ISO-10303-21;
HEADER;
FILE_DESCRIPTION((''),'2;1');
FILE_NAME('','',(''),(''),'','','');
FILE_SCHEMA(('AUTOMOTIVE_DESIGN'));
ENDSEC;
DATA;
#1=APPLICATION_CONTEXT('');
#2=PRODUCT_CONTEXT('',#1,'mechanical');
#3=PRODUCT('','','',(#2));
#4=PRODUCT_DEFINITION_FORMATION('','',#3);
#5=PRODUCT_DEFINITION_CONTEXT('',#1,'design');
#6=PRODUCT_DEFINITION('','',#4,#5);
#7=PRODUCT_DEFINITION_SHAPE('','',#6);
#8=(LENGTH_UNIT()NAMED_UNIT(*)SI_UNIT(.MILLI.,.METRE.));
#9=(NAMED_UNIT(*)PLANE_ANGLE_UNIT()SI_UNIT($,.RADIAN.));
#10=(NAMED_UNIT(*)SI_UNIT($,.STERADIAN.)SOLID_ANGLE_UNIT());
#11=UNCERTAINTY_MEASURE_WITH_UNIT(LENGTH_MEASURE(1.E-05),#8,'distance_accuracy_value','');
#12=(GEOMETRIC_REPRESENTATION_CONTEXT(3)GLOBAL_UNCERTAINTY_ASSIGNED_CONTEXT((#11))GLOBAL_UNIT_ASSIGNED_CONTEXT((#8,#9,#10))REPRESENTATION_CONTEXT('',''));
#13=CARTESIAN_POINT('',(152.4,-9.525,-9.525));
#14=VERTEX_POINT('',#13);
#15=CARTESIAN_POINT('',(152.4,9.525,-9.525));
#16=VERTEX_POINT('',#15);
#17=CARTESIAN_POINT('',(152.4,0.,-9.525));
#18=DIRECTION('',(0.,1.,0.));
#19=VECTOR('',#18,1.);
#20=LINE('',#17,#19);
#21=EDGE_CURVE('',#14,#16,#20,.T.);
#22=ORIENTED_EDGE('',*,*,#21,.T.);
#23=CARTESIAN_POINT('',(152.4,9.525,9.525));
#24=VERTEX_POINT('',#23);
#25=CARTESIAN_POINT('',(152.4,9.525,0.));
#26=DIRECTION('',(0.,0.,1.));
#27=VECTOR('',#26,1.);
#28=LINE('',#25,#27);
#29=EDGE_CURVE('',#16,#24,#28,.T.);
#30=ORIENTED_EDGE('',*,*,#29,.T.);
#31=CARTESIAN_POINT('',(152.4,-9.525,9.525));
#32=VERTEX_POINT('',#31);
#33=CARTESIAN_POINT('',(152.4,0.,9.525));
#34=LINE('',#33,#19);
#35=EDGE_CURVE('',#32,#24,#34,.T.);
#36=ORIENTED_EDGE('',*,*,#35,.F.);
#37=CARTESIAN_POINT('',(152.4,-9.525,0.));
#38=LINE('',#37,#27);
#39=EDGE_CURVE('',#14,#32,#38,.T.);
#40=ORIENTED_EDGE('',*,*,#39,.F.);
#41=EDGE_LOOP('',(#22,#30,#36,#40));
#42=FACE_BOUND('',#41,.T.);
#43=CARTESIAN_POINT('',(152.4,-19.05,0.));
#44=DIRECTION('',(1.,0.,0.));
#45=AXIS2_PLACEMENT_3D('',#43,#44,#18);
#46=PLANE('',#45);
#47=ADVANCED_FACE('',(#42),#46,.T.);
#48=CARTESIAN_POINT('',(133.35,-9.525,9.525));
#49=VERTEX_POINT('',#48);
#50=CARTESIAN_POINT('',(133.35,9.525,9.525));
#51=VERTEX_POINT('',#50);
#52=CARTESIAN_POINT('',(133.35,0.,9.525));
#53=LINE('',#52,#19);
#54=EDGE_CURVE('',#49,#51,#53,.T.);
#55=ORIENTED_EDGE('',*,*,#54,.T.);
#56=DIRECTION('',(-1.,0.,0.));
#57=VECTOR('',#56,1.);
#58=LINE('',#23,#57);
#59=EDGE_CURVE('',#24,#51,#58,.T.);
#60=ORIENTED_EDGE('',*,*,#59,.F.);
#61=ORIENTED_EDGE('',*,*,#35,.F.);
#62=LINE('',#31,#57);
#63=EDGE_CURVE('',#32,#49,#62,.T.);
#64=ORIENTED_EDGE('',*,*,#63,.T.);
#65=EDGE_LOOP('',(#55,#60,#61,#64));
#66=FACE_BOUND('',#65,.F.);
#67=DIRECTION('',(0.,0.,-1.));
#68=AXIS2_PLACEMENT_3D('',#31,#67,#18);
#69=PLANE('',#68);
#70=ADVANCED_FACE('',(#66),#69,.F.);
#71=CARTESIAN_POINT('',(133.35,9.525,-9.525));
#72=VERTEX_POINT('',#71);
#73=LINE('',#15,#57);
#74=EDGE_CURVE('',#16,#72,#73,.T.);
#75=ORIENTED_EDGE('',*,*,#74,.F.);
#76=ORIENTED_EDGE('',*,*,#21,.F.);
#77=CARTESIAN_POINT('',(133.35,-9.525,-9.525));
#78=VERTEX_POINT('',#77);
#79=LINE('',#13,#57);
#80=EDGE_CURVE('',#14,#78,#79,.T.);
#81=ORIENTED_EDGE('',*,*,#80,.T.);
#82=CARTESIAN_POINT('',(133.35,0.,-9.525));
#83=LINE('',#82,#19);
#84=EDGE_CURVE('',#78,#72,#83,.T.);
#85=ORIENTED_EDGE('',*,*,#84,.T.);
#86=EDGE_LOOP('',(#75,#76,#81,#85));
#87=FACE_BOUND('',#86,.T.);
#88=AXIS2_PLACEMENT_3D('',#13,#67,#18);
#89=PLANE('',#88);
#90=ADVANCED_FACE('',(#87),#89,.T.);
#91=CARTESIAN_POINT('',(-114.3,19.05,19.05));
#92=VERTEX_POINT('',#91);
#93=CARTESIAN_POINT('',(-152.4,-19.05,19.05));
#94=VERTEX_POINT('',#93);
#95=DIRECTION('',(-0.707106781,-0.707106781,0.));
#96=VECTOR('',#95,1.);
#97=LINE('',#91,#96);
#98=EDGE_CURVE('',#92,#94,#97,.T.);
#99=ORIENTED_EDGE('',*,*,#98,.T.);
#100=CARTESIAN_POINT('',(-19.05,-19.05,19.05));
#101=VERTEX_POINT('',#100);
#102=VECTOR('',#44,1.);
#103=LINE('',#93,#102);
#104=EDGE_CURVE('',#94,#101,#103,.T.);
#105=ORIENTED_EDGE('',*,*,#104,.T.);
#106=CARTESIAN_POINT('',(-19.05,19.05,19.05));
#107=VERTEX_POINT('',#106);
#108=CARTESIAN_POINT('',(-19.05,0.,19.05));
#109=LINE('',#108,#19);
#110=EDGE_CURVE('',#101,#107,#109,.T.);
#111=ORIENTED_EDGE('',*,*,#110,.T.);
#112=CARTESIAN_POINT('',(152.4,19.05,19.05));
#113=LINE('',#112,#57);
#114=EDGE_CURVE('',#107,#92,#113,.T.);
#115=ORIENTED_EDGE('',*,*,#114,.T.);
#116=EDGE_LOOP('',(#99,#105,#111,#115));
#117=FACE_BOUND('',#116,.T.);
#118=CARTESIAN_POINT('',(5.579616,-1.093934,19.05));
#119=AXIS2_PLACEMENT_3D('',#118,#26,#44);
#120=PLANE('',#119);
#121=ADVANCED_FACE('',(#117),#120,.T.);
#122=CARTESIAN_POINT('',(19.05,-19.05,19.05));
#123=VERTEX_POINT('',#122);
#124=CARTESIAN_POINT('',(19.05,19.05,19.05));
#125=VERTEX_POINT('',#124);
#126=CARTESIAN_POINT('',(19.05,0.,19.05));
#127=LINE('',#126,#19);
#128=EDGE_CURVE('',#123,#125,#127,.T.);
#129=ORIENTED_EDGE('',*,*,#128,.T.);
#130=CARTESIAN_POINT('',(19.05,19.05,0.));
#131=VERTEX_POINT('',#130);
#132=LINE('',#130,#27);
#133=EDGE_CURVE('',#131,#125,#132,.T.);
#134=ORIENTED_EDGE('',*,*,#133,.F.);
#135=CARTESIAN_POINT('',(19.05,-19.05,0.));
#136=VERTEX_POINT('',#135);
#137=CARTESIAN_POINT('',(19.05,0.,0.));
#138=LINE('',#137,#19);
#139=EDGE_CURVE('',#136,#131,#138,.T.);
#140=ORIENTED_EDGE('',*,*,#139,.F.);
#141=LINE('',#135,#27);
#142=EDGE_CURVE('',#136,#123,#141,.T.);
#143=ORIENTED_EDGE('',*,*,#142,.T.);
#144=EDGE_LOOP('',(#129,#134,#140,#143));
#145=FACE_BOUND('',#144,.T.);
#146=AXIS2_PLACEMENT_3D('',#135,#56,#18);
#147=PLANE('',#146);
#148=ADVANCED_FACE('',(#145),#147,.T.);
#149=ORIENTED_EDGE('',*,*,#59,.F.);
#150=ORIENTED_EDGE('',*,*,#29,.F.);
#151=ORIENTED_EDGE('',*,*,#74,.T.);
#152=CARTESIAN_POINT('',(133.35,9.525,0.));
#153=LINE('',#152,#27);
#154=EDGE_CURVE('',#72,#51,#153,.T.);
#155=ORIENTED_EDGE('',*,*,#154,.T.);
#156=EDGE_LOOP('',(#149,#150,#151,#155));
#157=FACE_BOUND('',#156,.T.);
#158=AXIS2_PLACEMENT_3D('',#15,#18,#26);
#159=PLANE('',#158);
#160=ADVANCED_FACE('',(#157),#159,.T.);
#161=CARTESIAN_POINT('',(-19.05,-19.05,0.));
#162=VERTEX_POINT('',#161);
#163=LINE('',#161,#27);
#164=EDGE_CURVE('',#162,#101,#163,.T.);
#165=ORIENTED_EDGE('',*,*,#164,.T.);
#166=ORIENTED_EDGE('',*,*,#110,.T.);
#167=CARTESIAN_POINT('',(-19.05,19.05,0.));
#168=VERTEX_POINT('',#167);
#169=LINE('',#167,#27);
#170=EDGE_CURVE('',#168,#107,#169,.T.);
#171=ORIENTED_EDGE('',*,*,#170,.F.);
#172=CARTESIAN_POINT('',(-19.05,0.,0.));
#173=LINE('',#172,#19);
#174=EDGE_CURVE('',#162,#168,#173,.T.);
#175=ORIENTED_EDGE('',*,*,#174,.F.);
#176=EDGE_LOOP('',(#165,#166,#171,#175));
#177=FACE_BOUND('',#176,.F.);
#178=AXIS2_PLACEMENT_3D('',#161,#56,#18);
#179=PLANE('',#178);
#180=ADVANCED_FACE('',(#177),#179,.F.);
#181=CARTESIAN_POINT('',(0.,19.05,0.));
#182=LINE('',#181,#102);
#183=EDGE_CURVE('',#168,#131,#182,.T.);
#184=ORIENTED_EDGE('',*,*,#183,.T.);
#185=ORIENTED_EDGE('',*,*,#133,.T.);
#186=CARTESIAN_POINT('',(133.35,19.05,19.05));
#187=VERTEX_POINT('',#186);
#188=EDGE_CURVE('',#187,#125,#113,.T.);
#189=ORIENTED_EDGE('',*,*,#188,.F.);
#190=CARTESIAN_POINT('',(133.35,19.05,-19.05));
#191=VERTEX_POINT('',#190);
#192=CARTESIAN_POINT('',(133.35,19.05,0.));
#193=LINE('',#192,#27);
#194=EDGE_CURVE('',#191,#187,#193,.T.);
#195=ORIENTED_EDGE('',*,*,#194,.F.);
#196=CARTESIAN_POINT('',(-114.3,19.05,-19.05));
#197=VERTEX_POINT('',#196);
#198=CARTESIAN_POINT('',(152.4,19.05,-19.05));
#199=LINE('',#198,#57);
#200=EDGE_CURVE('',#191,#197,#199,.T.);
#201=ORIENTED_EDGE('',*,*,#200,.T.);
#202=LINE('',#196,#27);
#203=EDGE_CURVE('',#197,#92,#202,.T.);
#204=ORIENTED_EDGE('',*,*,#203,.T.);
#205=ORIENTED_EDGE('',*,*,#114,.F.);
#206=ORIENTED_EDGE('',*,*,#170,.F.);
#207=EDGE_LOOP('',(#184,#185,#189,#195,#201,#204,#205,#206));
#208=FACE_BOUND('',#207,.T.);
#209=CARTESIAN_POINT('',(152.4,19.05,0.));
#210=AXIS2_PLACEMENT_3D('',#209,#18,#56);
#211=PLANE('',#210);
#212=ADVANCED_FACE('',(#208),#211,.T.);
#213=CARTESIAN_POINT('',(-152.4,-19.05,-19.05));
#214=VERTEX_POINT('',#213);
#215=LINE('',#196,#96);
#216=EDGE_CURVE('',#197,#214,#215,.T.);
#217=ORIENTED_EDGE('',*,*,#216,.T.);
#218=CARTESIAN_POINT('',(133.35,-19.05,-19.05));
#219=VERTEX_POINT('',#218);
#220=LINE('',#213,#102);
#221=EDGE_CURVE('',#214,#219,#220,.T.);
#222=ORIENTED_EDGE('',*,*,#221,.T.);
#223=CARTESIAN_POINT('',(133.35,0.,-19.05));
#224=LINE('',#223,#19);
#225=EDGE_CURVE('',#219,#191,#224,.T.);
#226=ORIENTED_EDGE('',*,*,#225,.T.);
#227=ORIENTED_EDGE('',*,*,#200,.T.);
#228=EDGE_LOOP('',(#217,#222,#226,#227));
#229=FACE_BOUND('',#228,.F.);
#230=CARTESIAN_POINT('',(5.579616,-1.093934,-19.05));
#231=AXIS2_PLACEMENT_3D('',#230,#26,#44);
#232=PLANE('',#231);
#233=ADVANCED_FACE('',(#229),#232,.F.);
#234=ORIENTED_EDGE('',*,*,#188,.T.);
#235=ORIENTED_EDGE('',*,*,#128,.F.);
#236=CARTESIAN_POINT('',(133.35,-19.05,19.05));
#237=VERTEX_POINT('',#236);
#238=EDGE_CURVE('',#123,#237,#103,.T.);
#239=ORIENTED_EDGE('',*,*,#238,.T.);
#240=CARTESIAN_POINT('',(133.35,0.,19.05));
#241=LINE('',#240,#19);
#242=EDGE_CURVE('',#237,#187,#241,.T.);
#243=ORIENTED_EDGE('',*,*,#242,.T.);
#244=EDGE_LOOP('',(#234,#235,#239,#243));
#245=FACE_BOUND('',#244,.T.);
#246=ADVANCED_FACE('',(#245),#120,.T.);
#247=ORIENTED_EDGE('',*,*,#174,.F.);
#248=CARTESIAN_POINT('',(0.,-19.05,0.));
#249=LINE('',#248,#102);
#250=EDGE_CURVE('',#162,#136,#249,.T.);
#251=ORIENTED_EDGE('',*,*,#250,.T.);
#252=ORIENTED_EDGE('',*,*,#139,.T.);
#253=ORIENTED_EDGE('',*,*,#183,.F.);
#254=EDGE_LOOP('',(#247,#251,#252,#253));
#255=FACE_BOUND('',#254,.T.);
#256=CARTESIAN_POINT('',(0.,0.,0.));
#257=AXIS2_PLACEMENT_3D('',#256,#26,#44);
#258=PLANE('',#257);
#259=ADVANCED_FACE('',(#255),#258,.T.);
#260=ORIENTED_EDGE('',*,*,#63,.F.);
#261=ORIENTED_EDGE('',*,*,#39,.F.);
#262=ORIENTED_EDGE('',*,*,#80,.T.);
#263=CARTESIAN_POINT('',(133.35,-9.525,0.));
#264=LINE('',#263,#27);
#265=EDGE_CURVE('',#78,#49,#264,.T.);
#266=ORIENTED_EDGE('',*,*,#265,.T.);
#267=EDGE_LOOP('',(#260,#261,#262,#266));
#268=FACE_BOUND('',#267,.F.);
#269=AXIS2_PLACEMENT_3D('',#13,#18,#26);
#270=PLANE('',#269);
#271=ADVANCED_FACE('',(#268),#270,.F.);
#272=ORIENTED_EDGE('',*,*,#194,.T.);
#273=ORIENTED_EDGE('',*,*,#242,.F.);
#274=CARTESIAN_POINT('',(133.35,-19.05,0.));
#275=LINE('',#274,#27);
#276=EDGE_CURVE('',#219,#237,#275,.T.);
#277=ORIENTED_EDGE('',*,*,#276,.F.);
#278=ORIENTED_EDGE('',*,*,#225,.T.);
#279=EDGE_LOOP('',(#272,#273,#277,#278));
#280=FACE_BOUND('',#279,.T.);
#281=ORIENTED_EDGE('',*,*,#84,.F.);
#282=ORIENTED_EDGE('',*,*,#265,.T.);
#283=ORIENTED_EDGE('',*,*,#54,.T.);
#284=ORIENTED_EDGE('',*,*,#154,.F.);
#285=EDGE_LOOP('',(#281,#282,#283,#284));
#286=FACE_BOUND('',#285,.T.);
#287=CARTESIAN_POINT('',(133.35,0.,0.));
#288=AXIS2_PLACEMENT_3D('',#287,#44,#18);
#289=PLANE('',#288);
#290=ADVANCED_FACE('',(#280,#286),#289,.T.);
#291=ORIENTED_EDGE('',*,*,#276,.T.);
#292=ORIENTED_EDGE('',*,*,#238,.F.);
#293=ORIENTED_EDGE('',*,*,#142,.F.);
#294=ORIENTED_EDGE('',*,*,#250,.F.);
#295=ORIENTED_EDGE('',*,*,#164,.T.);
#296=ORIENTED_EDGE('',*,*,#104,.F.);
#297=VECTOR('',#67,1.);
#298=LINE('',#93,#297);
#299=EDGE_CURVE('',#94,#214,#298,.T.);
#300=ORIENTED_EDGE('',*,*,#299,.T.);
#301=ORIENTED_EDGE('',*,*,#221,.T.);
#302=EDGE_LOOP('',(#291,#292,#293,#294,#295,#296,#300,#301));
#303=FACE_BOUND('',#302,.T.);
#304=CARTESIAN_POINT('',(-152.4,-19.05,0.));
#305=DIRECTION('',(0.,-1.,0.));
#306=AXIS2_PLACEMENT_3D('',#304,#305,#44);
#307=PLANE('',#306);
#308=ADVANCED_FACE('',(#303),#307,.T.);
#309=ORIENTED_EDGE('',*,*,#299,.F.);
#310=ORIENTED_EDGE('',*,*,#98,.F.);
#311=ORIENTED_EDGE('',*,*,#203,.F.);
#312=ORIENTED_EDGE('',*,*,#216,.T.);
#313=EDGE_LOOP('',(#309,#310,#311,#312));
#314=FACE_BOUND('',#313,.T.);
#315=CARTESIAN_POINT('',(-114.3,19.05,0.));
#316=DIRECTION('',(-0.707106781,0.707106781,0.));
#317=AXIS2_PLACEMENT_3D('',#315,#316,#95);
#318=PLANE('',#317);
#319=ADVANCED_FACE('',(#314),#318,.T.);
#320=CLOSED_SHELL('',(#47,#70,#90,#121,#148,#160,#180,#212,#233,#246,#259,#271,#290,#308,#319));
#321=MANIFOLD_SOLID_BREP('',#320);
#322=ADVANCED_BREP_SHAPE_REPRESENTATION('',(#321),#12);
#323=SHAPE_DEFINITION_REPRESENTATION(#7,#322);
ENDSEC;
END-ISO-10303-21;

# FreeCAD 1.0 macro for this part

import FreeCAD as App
import Part
import Sketcher

V = App.Vector
Q = App.Units.Quantity

doc = App.newDocument("Part")
body = doc.addObject("PartDesign::Body", "Body")

sketch1 = body.newObject("Sketcher::SketchObject", "Sketch")
sketch1.AttachmentSupport = (doc.getObject("XY_Plane"), [""])
sketch1.MapMode = "FlatFace"
sketch1.addGeometry(Part.LineSegment(V(152, -19, 0), V(152, 19, 0)), False)
sketch1.addGeometry(Part.LineSegment(V(152, 19, 0), V(-114, 19, 0)), False)
sketch1.addGeometry(Part.LineSegment(V(-114, 19, 0), V(-152, -19, 0)), False)
sketch1.addGeometry(Part.LineSegment(V(-152, -19, 0), V(152, -19, 0)), False)
sketch1.addConstraint(Sketcher.Constraint("Coincident", 0, 2, 1, 1))
sketch1.addConstraint(Sketcher.Constraint("Coincident", 1, 2, 2, 1))
sketch1.addConstraint(Sketcher.Constraint("Coincident", 2, 2, 3, 1))
sketch1.addConstraint(Sketcher.Constraint("Coincident", 3, 2, 0, 1))
sketch1.addConstraint(Sketcher.Constraint("Vertical", 0))
sketch1.addConstraint(Sketcher.Constraint("Horizontal", 1))
sketch1.addConstraint(Sketcher.Constraint("Horizontal", 3))
sketch1.addConstraint(Sketcher.Constraint("Symmetric", 0, 2, 2, 2, -1, 1))
sketch1.addConstraint(Sketcher.Constraint("DistanceX", 3, 1, 3, 2, Q("12 in")))
sketch1.addConstraint(Sketcher.Constraint("DistanceX", 1, 2, 1, 1, Q("10.5 in")))
sketch1.addConstraint(Sketcher.Constraint("DistanceY", 0, 1, 0, 2, Q("1.5 in")))
pad1 = body.newObject("PartDesign::Pad", "Pad")
pad1.Profile = sketch1
pad1.Length = Q("1.5 in")
pad1.Midplane = True

sketch2 = body.newObject("Sketcher::SketchObject", "Sketch001")
sketch2.AttachmentSupport = (doc.getObject("XY_Plane"), [""])
sketch2.MapMode = "FlatFace"
sketch2.addGeometry(Part.LineSegment(V(-19, 19, 0), V(-19, -19, 0)), False)
sketch2.addGeometry(Part.LineSegment(V(-19, -19, 0), V(19, -19, 0)), False)
sketch2.addGeometry(Part.LineSegment(V(19, -19, 0), V(19, 19, 0)), False)
sketch2.addGeometry(Part.LineSegment(V(19, 19, 0), V(-19, 19, 0)), False)
sketch2.addConstraint(Sketcher.Constraint("Coincident", 0, 2, 1, 1))
sketch2.addConstraint(Sketcher.Constraint("Coincident", 1, 2, 2, 1))
sketch2.addConstraint(Sketcher.Constraint("Coincident", 2, 2, 3, 1))
sketch2.addConstraint(Sketcher.Constraint("Coincident", 3, 2, 0, 1))
sketch2.addConstraint(Sketcher.Constraint("Vertical", 0))
sketch2.addConstraint(Sketcher.Constraint("Horizontal", 1))
sketch2.addConstraint(Sketcher.Constraint("Vertical", 2))
sketch2.addConstraint(Sketcher.Constraint("Horizontal", 3))
sketch2.addConstraint(Sketcher.Constraint("Symmetric", 0, 2, 2, 2, -1, 1))
sketch2.addConstraint(Sketcher.Constraint("Equal", 3, 0))
sketch2.addConstraint(Sketcher.Constraint("DistanceX", 1, 1, 1, 2, Q("1.5 in")))
pocket1 = body.newObject("PartDesign::Pocket", "Pocket")
pocket1.Profile = sketch2
pocket1.Length = Q("0.75 in")
pocket1.Reversed = True

sketch3 = body.newObject("Sketcher::SketchObject", "Sketch002")
sketch3.AttachmentSupport = (doc.getObject("YZ_Plane"), [""])
sketch3.MapMode = "FlatFace"
sketch3.AttachmentOffset = App.Placement(V(0, 0, 6 * 25.4), App.Rotation())
sketch3.addGeometry(Part.LineSegment(V(-19, 19, 0), V(-19, -19, 0)), False)
sketch3.addGeometry(Part.LineSegment(V(-19, -19, 0), V(19, -19, 0)), False)
sketch3.addGeometry(Part.LineSegment(V(19, -19, 0), V(19, 19, 0)), False)
sketch3.addGeometry(Part.LineSegment(V(19, 19, 0), V(-19, 19, 0)), False)
sketch3.addGeometry(Part.LineSegment(V(10, -10, 0), V(-10, -10, 0)), False)
sketch3.addGeometry(Part.LineSegment(V(-10, -10, 0), V(-10, 10, 0)), False)
sketch3.addGeometry(Part.LineSegment(V(-10, 10, 0), V(10, 10, 0)), False)
sketch3.addGeometry(Part.LineSegment(V(10, 10, 0), V(10, -10, 0)), False)
sketch3.addConstraint(Sketcher.Constraint("Coincident", 0, 2, 1, 1))
sketch3.addConstraint(Sketcher.Constraint("Coincident", 1, 2, 2, 1))
sketch3.addConstraint(Sketcher.Constraint("Coincident", 2, 2, 3, 1))
sketch3.addConstraint(Sketcher.Constraint("Coincident", 3, 2, 0, 1))
sketch3.addConstraint(Sketcher.Constraint("Coincident", 4, 2, 5, 1))
sketch3.addConstraint(Sketcher.Constraint("Coincident", 5, 2, 6, 1))
sketch3.addConstraint(Sketcher.Constraint("Coincident", 6, 2, 7, 1))
sketch3.addConstraint(Sketcher.Constraint("Coincident", 7, 2, 4, 1))
sketch3.addConstraint(Sketcher.Constraint("Vertical", 0))
sketch3.addConstraint(Sketcher.Constraint("Horizontal", 1))
sketch3.addConstraint(Sketcher.Constraint("Vertical", 2))
sketch3.addConstraint(Sketcher.Constraint("Horizontal", 3))
sketch3.addConstraint(Sketcher.Constraint("Horizontal", 4))
sketch3.addConstraint(Sketcher.Constraint("Vertical", 5))
sketch3.addConstraint(Sketcher.Constraint("Horizontal", 6))
sketch3.addConstraint(Sketcher.Constraint("Vertical", 7))
sketch3.addConstraint(Sketcher.Constraint("Symmetric", 0, 2, 2, 2, -1, 1))
sketch3.addConstraint(Sketcher.Constraint("Symmetric", 4, 2, 6, 2, -1, 1))
sketch3.addConstraint(Sketcher.Constraint("Equal", 3, 0))
sketch3.addConstraint(Sketcher.Constraint("Equal", 6, 5))
sketch3.addConstraint(Sketcher.Constraint("DistanceX", 1, 1, 1, 2, Q("1.5 in")))
sketch3.addConstraint(Sketcher.Constraint("DistanceX", 4, 2, 4, 1, Q("0.75 in")))
pocket2 = body.newObject("PartDesign::Pocket", "Pocket001")
pocket2.Profile = sketch3
pocket2.Length = Q("0.75 in")

doc.recompute()
